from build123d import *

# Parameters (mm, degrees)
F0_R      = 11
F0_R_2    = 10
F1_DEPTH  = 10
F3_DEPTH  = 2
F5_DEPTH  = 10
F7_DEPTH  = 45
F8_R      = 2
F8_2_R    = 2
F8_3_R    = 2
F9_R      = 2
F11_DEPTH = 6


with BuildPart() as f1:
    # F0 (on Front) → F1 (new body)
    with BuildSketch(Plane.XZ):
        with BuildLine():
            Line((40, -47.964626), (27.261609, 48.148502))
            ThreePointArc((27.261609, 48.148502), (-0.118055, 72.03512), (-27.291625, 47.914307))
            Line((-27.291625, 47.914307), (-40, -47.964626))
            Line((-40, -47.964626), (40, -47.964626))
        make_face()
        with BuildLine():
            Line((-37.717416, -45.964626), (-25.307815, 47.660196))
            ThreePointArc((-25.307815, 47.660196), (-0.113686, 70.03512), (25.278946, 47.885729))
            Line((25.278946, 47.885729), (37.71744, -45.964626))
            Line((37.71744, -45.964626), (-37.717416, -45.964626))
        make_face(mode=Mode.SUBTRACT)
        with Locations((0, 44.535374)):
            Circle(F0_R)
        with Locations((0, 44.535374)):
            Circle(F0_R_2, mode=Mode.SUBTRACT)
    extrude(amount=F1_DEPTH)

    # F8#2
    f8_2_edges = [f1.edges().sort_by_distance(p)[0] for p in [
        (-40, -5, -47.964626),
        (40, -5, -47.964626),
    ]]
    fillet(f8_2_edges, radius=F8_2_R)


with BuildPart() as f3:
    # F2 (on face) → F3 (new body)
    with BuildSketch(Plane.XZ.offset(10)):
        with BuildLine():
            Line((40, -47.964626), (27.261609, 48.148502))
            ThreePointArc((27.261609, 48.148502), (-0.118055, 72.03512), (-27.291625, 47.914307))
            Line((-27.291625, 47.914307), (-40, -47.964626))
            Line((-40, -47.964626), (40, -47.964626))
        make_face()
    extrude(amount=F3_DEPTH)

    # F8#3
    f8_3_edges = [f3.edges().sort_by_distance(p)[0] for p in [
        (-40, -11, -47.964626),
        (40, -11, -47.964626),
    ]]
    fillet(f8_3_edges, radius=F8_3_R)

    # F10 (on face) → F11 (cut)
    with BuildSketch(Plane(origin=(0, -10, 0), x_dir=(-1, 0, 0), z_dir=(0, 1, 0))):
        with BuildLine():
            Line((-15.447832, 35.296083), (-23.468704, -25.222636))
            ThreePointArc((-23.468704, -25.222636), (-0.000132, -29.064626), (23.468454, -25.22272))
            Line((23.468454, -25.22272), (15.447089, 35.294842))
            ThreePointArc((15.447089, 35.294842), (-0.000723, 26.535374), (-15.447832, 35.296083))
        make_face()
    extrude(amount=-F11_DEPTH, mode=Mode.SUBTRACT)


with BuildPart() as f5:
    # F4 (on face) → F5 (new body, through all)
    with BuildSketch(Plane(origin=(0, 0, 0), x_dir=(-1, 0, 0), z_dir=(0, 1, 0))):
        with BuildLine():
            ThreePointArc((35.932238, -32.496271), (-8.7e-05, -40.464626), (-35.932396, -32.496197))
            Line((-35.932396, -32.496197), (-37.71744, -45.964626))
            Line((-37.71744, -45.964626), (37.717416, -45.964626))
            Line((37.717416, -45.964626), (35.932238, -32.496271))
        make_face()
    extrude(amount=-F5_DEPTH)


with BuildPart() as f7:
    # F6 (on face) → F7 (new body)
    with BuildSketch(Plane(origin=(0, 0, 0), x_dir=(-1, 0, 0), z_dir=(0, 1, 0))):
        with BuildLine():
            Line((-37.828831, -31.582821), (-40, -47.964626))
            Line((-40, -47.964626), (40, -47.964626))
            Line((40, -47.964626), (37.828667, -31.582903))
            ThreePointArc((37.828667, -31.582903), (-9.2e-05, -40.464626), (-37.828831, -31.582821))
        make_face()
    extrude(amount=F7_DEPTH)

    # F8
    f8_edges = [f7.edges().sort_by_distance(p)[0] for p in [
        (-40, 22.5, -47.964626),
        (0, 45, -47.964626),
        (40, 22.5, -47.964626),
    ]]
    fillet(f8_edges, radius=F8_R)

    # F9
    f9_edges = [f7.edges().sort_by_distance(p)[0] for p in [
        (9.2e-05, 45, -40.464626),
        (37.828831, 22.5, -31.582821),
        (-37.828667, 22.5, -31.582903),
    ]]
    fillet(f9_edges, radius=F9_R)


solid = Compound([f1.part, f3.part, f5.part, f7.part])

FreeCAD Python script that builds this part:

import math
import FreeCAD as App
import Part
import Sketcher

V = App.Vector


def edges_at(feature, points):
    """Names of the edges that pass closest to the given points."""
    edges = feature.Shape.Edges
    near = lambda p: min(range(len(edges)), key=lambda i: edges[i].distToShape(Part.Vertex(*p))[0])
    return sorted({f"Edge{near(p) + 1}" for p in points})

doc = App.newDocument("Part")
body = doc.addObject("PartDesign::Body", "Body")
body.AllowCompound = True

# Sketch on XZ plane
sketch1 = doc.addObject("Sketcher::SketchObject", "Sketch")
body.addObject(sketch1)
sketch1.AttachmentSupport = (doc.XZ_Plane, [""])
sketch1.MapMode = "FlatFace"
sketch1.addGeometry(Part.LineSegment(V(40, -48, 0), V(27, 48, 0)), False)
sketch1.addGeometry(Part.ArcOfCircle(Part.Circle(V(0, 45, 0), V(0, 0, 1), 28), math.radians(8), math.radians(173)), False)
sketch1.addGeometry(Part.LineSegment(V(-27, 48, 0), V(-40, -48, 0)), False)
sketch1.addGeometry(Part.LineSegment(V(-40, -48, 0), V(40, -48, 0)), False)
sketch1.addGeometry(Part.LineSegment(V(38, -46, 0), V(-38, -46, 0)), False)
sketch1.addGeometry(Part.LineSegment(V(-38, -46, 0), V(-25, 48, 0)), False)
sketch1.addGeometry(Part.ArcOfCircle(Part.Circle(V(0, 45, 0), V(0, 0, 1), 26), math.radians(8), math.radians(173)), False)
sketch1.addGeometry(Part.LineSegment(V(25, 48, 0), V(38, -46, 0)), False)
sketch1.addGeometry(Part.Circle(V(0, 45, 0), V(0, 0, 1), 11), False)
sketch1.addGeometry(Part.Circle(V(0, 45, 0), V(0, 0, 1), 10), False)
sketch1.addConstraint(Sketcher.Constraint("Tangent", 0, 2, 1, 1))
sketch1.addConstraint(Sketcher.Constraint("Coincident", 1, 2, 2, 1))
sketch1.addConstraint(Sketcher.Constraint("Coincident", 2, 2, 3, 1))
sketch1.addConstraint(Sketcher.Constraint("Coincident", 3, 2, 0, 1))
sketch1.addConstraint(Sketcher.Constraint("Coincident", 4, 2, 5, 1))
sketch1.addConstraint(Sketcher.Constraint("Coincident", 5, 2, 6, 2))
sketch1.addConstraint(Sketcher.Constraint("Tangent", 6, 1, 7, 1))
sketch1.addConstraint(Sketcher.Constraint("Coincident", 7, 2, 4, 1))
sketch1.addConstraint(Sketcher.Constraint("Horizontal", 3))
sketch1.addConstraint(Sketcher.Constraint("Horizontal", 4))
sketch1.addConstraint(Sketcher.Constraint("Coincident", 6, 3, 1, 3))
sketch1.addConstraint(Sketcher.Constraint("Coincident", 8, 3, 1, 3))
sketch1.addConstraint(Sketcher.Constraint("Coincident", 9, 3, 1, 3))
sketch1.addConstraint(Sketcher.Constraint("PointOnObject", 1, 3, -2))
sketch1.addConstraint(Sketcher.Constraint("Parallel", 2, 5))
sketch1.addConstraint(Sketcher.Constraint("Parallel", 0, 7))
sketch1.addConstraint(Sketcher.Constraint("Diameter", 8, 22.0))
sketch1.addConstraint(Sketcher.Constraint("Diameter", 9, 20.0))
sketch1.addConstraint(Sketcher.Constraint("Radius", 1, 27.5))
sketch1.addConstraint(Sketcher.Constraint("Radius", 6, 25.5))
sketch1.addConstraint(Sketcher.Constraint("DistanceX", 3, 1, 3, 2, 80.0))
sketch1.addConstraint(Sketcher.Constraint("DistanceX", 2, 2, -1, 1, 40.0))
sketch1.addConstraint(Sketcher.Constraint("DistanceY", 2, 2, 4, 2, 2.0))
sketch1.addConstraint(Sketcher.Constraint("DistanceY", 2, 2, 6, 3, 92.499999))
sketch1.addConstraint(Sketcher.Constraint("Distance", 2, 96.717489))
sketch1.addConstraint(Sketcher.Constraint("DistanceX", 4, 2, 4, 1, 75.434856))
sketch1.addConstraint(Sketcher.Constraint("DistanceY", -1, 1, 6, 1, 47.885729))
pad1 = doc.addObject("PartDesign::Pad", "Pad")
body.addObject(pad1)
pad1.Profile = sketch1
pad1.Length = 10
doc.recompute()

fillet = doc.addObject("PartDesign::Fillet", "Fillet")
body.addObject(fillet)
fillet.Base = (pad1, edges_at(pad1, [(-40, -5, -47.965), (40, -5, -47.965)]))
fillet.Radius = 2
body2 = doc.addObject("PartDesign::Body", "Body001")

# Sketch on XZ plane
sketch2 = doc.addObject("Sketcher::SketchObject", "Sketch001")
body2.addObject(sketch2)
sketch2.AttachmentSupport = (doc.getObject("XZ_Plane001"), [""])
sketch2.MapMode = "FlatFace"
sketch2.AttachmentOffset = App.Placement(V(0, 0, 10), App.Rotation())
sketch2.addGeometry(Part.LineSegment(V(40, -48, 0), V(27, 48, 0)), False)
sketch2.addGeometry(Part.ArcOfCircle(Part.Circle(V(0, 45, 0), V(0, 0, 1), 28), math.radians(8), math.radians(173)), False)
sketch2.addGeometry(Part.LineSegment(V(-27, 48, 0), V(-40, -48, 0)), False)
sketch2.addGeometry(Part.LineSegment(V(-40, -48, 0), V(40, -48, 0)), False)
sketch2.addConstraint(Sketcher.Constraint("Tangent", 0, 2, 1, 1))
sketch2.addConstraint(Sketcher.Constraint("Coincident", 1, 2, 2, 1))
sketch2.addConstraint(Sketcher.Constraint("Coincident", 2, 2, 3, 1))
sketch2.addConstraint(Sketcher.Constraint("Coincident", 3, 2, 0, 1))
sketch2.addConstraint(Sketcher.Constraint("Horizontal", 3))
sketch2.addConstraint(Sketcher.Constraint("PointOnObject", 1, 3, -2))
sketch2.addConstraint(Sketcher.Constraint("Radius", 1, 27.5))
sketch2.addConstraint(Sketcher.Constraint("DistanceX", 3, 1, 3, 2, 80.0))
sketch2.addConstraint(Sketcher.Constraint("DistanceX", 2, 2, -1, 1, 40.0))
sketch2.addConstraint(Sketcher.Constraint("DistanceY", 2, 2, 1, 3, 92.499999))
sketch2.addConstraint(Sketcher.Constraint("Distance", 2, 96.717489))
sketch2.addConstraint(Sketcher.Constraint("DistanceY", -1, 1, 1, 3, 44.535373))
pad2 = doc.addObject("PartDesign::Pad", "Pad001")
body2.addObject(pad2)
pad2.Profile = sketch2
pad2.Length = 2
doc.recompute()

fillet2 = doc.addObject("PartDesign::Fillet", "Fillet001")
body2.addObject(fillet2)
fillet2.Base = (pad2, edges_at(pad2, [(-40, -11, -47.965), (40, -11, -47.965)]))
fillet2.Radius = 2

# Sketch on XZ plane
sketch3 = doc.addObject("Sketcher::SketchObject", "Sketch002")
body2.addObject(sketch3)
sketch3.AttachmentSupport = (doc.getObject("XZ_Plane001"), [""])
sketch3.MapMode = "FlatFace"
sketch3.AttachmentOffset = App.Placement(V(0, 0, 10), App.Rotation())
sketch3.addGeometry(Part.LineSegment(V(15, 35, 0), V(23, -25, 0)), False)
sketch3.addGeometry(Part.ArcOfCircle(Part.Circle(V(0, 45, 0), V(0, 0, 1), 74), math.radians(-109), math.radians(-71)), False)
sketch3.addGeometry(Part.LineSegment(V(-23, -25, 0), V(-15, 35, 0)), False)
sketch3.addGeometry(Part.ArcOfCircle(Part.Circle(V(0, 45, 0), V(0, 0, 1), 18), math.radians(-149), math.radians(-31)), False)
sketch3.addConstraint(Sketcher.Constraint("Coincident", 0, 2, 1, 2))
sketch3.addConstraint(Sketcher.Constraint("Coincident", 1, 1, 2, 1))
sketch3.addConstraint(Sketcher.Constraint("Coincident", 2, 2, 3, 1))
sketch3.addConstraint(Sketcher.Constraint("Coincident", 3, 2, 0, 1))
sketch3.addConstraint(Sketcher.Constraint("Coincident", 3, 3, 1, 3))
sketch3.addConstraint(Sketcher.Constraint("PointOnObject", 1, 3, -2))
sketch3.addConstraint(Sketcher.Constraint("Radius", 3, 18.0))
sketch3.addConstraint(Sketcher.Constraint("Radius", 1, 73.600002))
sketch3.addConstraint(Sketcher.Constraint("Distance", 0, 61.04793))
sketch3.addConstraint(Sketcher.Constraint("DistanceY", 1, 1, -1, 1, 25.22272))
sketch3.addConstraint(Sketcher.Constraint("DistanceX", 2, 2, -1, 1, 15.447089))
sketch3.addConstraint(Sketcher.Constraint("DistanceX", -1, 1, 3, 2, 15.447832))
sketch3.addConstraint(Sketcher.Constraint("DistanceY", 1, 1, 2, 2, 60.517562))
pocket1 = doc.addObject("PartDesign::Pocket", "Pocket")
body2.addObject(pocket1)
pocket1.Profile = sketch3
pocket1.Length = 6
pocket1.Reversed = True
body3 = doc.addObject("PartDesign::Body", "Body002")

# Sketch on XZ plane
sketch4 = doc.addObject("Sketcher::SketchObject", "Sketch003")
body3.addObject(sketch4)
sketch4.AttachmentSupport = (doc.getObject("XZ_Plane002"), [""])
sketch4.MapMode = "FlatFace"
sketch4.addGeometry(Part.ArcOfCircle(Part.Circle(V(0, 45, 0), V(0, 0, 1), 85), math.radians(-115), math.radians(-65)), False)
sketch4.addGeometry(Part.LineSegment(V(36, -32, 0), V(38, -46, 0)), False)
sketch4.addGeometry(Part.LineSegment(V(38, -46, 0), V(-38, -46, 0)), False)
sketch4.addGeometry(Part.LineSegment(V(-38, -46, 0), V(-36, -32, 0)), False)
sketch4.addConstraint(Sketcher.Constraint("Coincident", 0, 2, 1, 1))
sketch4.addConstraint(Sketcher.Constraint("Coincident", 1, 2, 2, 1))
sketch4.addConstraint(Sketcher.Constraint("Coincident", 2, 2, 3, 1))
sketch4.addConstraint(Sketcher.Constraint("Coincident", 3, 2, 0, 1))
sketch4.addConstraint(Sketcher.Constraint("Horizontal", 2))
sketch4.addConstraint(Sketcher.Constraint("PointOnObject", 0, 3, -2))
sketch4.addConstraint(Sketcher.Constraint("Radius", 0, 85.000002))
sketch4.addConstraint(Sketcher.Constraint("Distance", 3, 13.586149))
sketch4.addConstraint(Sketcher.Constraint("DistanceX", 2, 2, 2, 1, 75.434856))
sketch4.addConstraint(Sketcher.Constraint("DistanceX", -1, 1, 1, 2, 37.71744))
sketch4.addConstraint(Sketcher.Constraint("DistanceY", 3, 2, -1, 1, 32.496271))
sketch4.addConstraint(Sketcher.Constraint("DistanceY", 1, 2, 0, 2, 13.468429))
sketch4.addConstraint(Sketcher.Constraint("DistanceX", 2, 2, 0, 2, 73.649812))
pad3 = doc.addObject("PartDesign::Pad", "Pad002")
body3.addObject(pad3)
pad3.Profile = sketch4
pad3.Length = 10
body4 = doc.addObject("PartDesign::Body", "Body003")

# Sketch on XZ plane
sketch5 = doc.addObject("Sketcher::SketchObject", "Sketch004")
body4.addObject(sketch5)
sketch5.AttachmentSupport = (doc.getObject("XZ_Plane003"), [""])
sketch5.MapMode = "FlatFace"
sketch5.addGeometry(Part.LineSegment(V(38, -32, 0), V(40, -48, 0)), False)
sketch5.addGeometry(Part.LineSegment(V(40, -48, 0), V(-40, -48, 0)), False)
sketch5.addGeometry(Part.LineSegment(V(-40, -48, 0), V(-38, -32, 0)), False)
sketch5.addGeometry(Part.ArcOfCircle(Part.Circle(V(0, 45, 0), V(0, 0, 1), 85), math.radians(-116), math.radians(-64)), False)
sketch5.addConstraint(Sketcher.Constraint("Coincident", 0, 2, 1, 1))
sketch5.addConstraint(Sketcher.Constraint("Coincident", 1, 2, 2, 1))
sketch5.addConstraint(Sketcher.Constraint("Coincident", 2, 2, 3, 1))
sketch5.addConstraint(Sketcher.Constraint("Coincident", 3, 2, 0, 1))
sketch5.addConstraint(Sketcher.Constraint("Horizontal", 1))
sketch5.addConstraint(Sketcher.Constraint("PointOnObject", 3, 3, -2))
sketch5.addConstraint(Sketcher.Constraint("DistanceX", 1, 2, 1, 1, 80.0))
sketch5.addConstraint(Sketcher.Constraint("DistanceX", -1, 1, 0, 2, 40.0))
sketch5.addConstraint(Sketcher.Constraint("Radius", 3, 85.000006))
sketch5.addConstraint(Sketcher.Constraint("DistanceX", 2, 2, 3, 2, 75.657498))
sketch5.addConstraint(Sketcher.Constraint("DistanceY", 3, 2, 3, 3, 76.118201))
sketch5.addConstraint(Sketcher.Constraint("DistanceY", -1, 1, 3, 3, 44.53538))
sketch5.addConstraint(Sketcher.Constraint("Distance", 0, 16.525057))
pad4 = doc.addObject("PartDesign::Pad", "Pad003")
body4.addObject(pad4)
pad4.Profile = sketch5
pad4.Length = 45
pad4.Reversed = True
doc.recompute()

fillet3 = doc.addObject("PartDesign::Fillet", "Fillet002")
body4.addObject(fillet3)
fillet3.Base = (pad4, edges_at(pad4, [(-40, 22.5, -47.965), (0, 45, -47.965), (40, 22.5, -47.965)]))
fillet3.Radius = 2
doc.recompute()

fillet4 = doc.addObject("PartDesign::Fillet", "Fillet003")
body4.addObject(fillet4)
fillet4.Base = (fillet3, edges_at(fillet3, [(0, 45, -40.465), (37.829, 22.5, -31.583), (-37.829, 22.5, -31.583)]))
fillet4.Radius = 2

doc.recompute()
